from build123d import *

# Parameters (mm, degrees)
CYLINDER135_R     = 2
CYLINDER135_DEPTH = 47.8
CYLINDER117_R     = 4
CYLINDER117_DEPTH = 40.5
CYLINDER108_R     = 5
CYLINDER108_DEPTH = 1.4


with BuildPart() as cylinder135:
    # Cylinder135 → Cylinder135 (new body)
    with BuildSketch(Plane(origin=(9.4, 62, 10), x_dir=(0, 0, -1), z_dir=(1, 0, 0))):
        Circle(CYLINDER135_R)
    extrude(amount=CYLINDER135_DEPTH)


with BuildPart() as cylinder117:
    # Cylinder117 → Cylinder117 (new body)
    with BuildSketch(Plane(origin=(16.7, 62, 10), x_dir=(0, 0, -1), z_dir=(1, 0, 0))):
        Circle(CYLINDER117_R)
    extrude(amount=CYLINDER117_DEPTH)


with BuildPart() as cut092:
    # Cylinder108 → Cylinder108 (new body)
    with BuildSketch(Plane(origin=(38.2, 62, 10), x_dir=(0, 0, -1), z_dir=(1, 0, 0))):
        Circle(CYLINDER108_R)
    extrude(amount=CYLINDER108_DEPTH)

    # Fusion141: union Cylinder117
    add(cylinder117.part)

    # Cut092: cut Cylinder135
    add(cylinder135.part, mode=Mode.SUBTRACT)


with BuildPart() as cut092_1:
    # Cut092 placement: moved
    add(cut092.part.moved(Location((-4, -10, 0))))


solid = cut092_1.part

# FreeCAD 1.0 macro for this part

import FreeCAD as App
import Part
import Sketcher
from FreeCAD import Vector
Q = App.Units.Quantity

doc = App.newDocument("Part")
params = doc.addObject("Spreadsheet::Sheet", "Params")
for row, (alias, value) in enumerate([
    ("sketch1_diameter", "4 mm"),
    ("pad1_length", "47.8 mm"),
    ("sketch2_diameter", "8 mm"),
    ("pad2_length", "40.5 mm"),
    ("sketch3_diameter", "10 mm"),
    ("pad3_length", "1.4 mm"),
], start=1):
    params.set(f"A{row}", alias)
    params.set(f"B{row}", "=" + value)
    params.setAlias(f"B{row}", alias)

body = doc.addObject("PartDesign::Body", "Body")

sketch1 = body.newObject("Sketcher::SketchObject", "Sketch")
sketch1.AttachmentSupport = (doc.getObject("YZ_Plane"), [""])
sketch1.MapMode = "FlatFace"
sketch1.AttachmentOffset = App.Placement(Vector(0, 0, 9.4), App.Rotation())
sketch1.addGeometry(Part.Circle(Vector(62, 10, 0), Vector(0, 0, 1), 2), False)
sketch1.addConstraint([
    Sketcher.Constraint("Diameter", 0, Q("4 mm")),
    Sketcher.Constraint("DistanceX", -1, 1, 0, 3, Q("62 mm")),
    Sketcher.Constraint("DistanceY", -1, 1, 0, 3, Q("10 mm")),
])
sketch1.setExpression("Constraints[0]", "Params.sketch1_diameter")
pad1 = body.newObject("PartDesign::Pad", "Pad")
pad1.Profile = sketch1
pad1.setExpression("Length", "Params.pad1_length")
body2 = doc.addObject("PartDesign::Body", "Body001")

sketch2 = body2.newObject("Sketcher::SketchObject", "Sketch001")
sketch2.AttachmentSupport = (doc.getObject("YZ_Plane001"), [""])
sketch2.MapMode = "FlatFace"
sketch2.AttachmentOffset = App.Placement(Vector(0, 0, 16.7), App.Rotation())
sketch2.addGeometry(Part.Circle(Vector(62, 10, 0), Vector(0, 0, 1), 4), False)
sketch2.addConstraint([
    Sketcher.Constraint("Diameter", 0, Q("8 mm")),
    Sketcher.Constraint("DistanceX", -1, 1, 0, 3, Q("62 mm")),
    Sketcher.Constraint("DistanceY", -1, 1, 0, 3, Q("10 mm")),
])
sketch2.setExpression("Constraints[0]", "Params.sketch2_diameter")
pad2 = body2.newObject("PartDesign::Pad", "Pad001")
pad2.Profile = sketch2
pad2.setExpression("Length", "Params.pad2_length")
body3 = doc.addObject("PartDesign::Body", "Body002")

sketch3 = body3.newObject("Sketcher::SketchObject", "Sketch002")
sketch3.AttachmentSupport = (doc.getObject("YZ_Plane002"), [""])
sketch3.MapMode = "FlatFace"
sketch3.AttachmentOffset = App.Placement(Vector(0, 0, 38.2), App.Rotation())
sketch3.addGeometry(Part.Circle(Vector(62, 10, 0), Vector(0, 0, 1), 5), False)
sketch3.addConstraint([
    Sketcher.Constraint("Diameter", 0, Q("10 mm")),
    Sketcher.Constraint("DistanceX", -1, 1, 0, 3, Q("62 mm")),
    Sketcher.Constraint("DistanceY", -1, 1, 0, 3, Q("10 mm")),
])
sketch3.setExpression("Constraints[0]", "Params.sketch3_diameter")
pad3 = body3.newObject("PartDesign::Pad", "Pad002")
pad3.Profile = sketch3
pad3.setExpression("Length", "Params.pad3_length")
doc.recompute()

boolean = body3.newObject("PartDesign::Boolean", "Boolean")
boolean.Type = "Fuse"
boolean.addObjects([body2])
doc.recompute()

boolean2 = body3.newObject("PartDesign::Boolean", "Boolean001")
boolean2.Type = "Cut"
boolean2.addObjects([body])
body4 = doc.addObject("PartDesign::Body", "Body003")
doc.recompute()

body3.Placement = App.Placement(Vector(-4, -10, 0), App.Rotation(Vector(0, 0, 1), 0))
boolean3 = body4.newObject("PartDesign::Boolean", "Boolean002")
boolean3.Type = "Fuse"
boolean3.addObjects([body3])

doc.recompute()
